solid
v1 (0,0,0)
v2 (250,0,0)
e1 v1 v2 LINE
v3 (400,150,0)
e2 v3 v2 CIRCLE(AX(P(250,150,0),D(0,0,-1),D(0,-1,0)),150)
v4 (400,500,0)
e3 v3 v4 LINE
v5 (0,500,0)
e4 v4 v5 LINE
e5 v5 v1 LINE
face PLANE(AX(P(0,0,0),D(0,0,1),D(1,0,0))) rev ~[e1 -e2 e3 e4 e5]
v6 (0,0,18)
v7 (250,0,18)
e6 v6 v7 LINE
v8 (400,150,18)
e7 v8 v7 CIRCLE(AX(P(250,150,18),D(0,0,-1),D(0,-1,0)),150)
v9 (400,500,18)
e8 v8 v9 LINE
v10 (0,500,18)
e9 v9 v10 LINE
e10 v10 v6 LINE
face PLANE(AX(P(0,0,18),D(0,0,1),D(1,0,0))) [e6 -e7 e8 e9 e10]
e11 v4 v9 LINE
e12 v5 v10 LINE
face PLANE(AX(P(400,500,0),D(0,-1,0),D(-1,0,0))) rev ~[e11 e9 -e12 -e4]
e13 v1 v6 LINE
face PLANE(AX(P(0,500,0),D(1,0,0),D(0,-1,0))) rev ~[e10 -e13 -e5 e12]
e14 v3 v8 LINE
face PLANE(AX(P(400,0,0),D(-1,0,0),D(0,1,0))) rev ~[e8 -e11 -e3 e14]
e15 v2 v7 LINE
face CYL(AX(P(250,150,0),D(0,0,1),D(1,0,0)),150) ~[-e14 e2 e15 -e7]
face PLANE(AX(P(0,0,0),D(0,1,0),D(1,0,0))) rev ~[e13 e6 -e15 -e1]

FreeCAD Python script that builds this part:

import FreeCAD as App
import Part
import Sketcher

V = App.Vector


def edges_at(feature, points):
    """Names of the edges that pass closest to the given points."""
    edges = feature.Shape.Edges
    near = lambda p: min(range(len(edges)), key=lambda i: edges[i].distToShape(Part.Vertex(*p))[0])
    return sorted({f"Edge{near(p) + 1}" for p in points})


def add_polygon(sketch, points):
    """Adds a closed chain of lines whose ends are joined by coincident constraints."""
    first, n = sketch.GeometryCount, len(points)
    for a, b in zip(points, points[1:] + points[:1]):
        sketch.addGeometry(Part.LineSegment(App.Vector(*a, 0), App.Vector(*b, 0)), False)
    for i in range(n):
        sketch.addConstraint(Sketcher.Constraint("Coincident", first + i, 2, first + (i + 1) % n, 1))

doc = App.newDocument("Part")
body = doc.addObject("PartDesign::Body", "Body")

# Sketch on XY plane
sketch1 = body.newObject("Sketcher::SketchObject", "Sketch")
sketch1.AttachmentSupport = (doc.getObject("XY_Plane"), [""])
sketch1.MapMode = "FlatFace"
add_polygon(sketch1, [(0, 500), (0, 0), (400, 0), (400, 500)])  # lines 0-3
sketch1.addConstraint([
    Sketcher.Constraint("Vertical", 0),
    Sketcher.Constraint("Horizontal", 1),
    Sketcher.Constraint("Vertical", 2),
    Sketcher.Constraint("Horizontal", 3),
    Sketcher.Constraint("Coincident", 0, 2, -1, 1),
    Sketcher.Constraint("DistanceX", 1, 1, 1, 2, 400.0),
    Sketcher.Constraint("DistanceY", 0, 2, 0, 1, 500.0),
])
pad1 = body.newObject("PartDesign::Pad", "Pad")
pad1.Profile = sketch1
pad1.Length = 18
doc.recompute()

fillet = body.newObject("PartDesign::Fillet", "Fillet")
fillet.Base = (pad1, edges_at(pad1, [(400, 0, 9)]))
fillet.Radius = 150

doc.recompute()
